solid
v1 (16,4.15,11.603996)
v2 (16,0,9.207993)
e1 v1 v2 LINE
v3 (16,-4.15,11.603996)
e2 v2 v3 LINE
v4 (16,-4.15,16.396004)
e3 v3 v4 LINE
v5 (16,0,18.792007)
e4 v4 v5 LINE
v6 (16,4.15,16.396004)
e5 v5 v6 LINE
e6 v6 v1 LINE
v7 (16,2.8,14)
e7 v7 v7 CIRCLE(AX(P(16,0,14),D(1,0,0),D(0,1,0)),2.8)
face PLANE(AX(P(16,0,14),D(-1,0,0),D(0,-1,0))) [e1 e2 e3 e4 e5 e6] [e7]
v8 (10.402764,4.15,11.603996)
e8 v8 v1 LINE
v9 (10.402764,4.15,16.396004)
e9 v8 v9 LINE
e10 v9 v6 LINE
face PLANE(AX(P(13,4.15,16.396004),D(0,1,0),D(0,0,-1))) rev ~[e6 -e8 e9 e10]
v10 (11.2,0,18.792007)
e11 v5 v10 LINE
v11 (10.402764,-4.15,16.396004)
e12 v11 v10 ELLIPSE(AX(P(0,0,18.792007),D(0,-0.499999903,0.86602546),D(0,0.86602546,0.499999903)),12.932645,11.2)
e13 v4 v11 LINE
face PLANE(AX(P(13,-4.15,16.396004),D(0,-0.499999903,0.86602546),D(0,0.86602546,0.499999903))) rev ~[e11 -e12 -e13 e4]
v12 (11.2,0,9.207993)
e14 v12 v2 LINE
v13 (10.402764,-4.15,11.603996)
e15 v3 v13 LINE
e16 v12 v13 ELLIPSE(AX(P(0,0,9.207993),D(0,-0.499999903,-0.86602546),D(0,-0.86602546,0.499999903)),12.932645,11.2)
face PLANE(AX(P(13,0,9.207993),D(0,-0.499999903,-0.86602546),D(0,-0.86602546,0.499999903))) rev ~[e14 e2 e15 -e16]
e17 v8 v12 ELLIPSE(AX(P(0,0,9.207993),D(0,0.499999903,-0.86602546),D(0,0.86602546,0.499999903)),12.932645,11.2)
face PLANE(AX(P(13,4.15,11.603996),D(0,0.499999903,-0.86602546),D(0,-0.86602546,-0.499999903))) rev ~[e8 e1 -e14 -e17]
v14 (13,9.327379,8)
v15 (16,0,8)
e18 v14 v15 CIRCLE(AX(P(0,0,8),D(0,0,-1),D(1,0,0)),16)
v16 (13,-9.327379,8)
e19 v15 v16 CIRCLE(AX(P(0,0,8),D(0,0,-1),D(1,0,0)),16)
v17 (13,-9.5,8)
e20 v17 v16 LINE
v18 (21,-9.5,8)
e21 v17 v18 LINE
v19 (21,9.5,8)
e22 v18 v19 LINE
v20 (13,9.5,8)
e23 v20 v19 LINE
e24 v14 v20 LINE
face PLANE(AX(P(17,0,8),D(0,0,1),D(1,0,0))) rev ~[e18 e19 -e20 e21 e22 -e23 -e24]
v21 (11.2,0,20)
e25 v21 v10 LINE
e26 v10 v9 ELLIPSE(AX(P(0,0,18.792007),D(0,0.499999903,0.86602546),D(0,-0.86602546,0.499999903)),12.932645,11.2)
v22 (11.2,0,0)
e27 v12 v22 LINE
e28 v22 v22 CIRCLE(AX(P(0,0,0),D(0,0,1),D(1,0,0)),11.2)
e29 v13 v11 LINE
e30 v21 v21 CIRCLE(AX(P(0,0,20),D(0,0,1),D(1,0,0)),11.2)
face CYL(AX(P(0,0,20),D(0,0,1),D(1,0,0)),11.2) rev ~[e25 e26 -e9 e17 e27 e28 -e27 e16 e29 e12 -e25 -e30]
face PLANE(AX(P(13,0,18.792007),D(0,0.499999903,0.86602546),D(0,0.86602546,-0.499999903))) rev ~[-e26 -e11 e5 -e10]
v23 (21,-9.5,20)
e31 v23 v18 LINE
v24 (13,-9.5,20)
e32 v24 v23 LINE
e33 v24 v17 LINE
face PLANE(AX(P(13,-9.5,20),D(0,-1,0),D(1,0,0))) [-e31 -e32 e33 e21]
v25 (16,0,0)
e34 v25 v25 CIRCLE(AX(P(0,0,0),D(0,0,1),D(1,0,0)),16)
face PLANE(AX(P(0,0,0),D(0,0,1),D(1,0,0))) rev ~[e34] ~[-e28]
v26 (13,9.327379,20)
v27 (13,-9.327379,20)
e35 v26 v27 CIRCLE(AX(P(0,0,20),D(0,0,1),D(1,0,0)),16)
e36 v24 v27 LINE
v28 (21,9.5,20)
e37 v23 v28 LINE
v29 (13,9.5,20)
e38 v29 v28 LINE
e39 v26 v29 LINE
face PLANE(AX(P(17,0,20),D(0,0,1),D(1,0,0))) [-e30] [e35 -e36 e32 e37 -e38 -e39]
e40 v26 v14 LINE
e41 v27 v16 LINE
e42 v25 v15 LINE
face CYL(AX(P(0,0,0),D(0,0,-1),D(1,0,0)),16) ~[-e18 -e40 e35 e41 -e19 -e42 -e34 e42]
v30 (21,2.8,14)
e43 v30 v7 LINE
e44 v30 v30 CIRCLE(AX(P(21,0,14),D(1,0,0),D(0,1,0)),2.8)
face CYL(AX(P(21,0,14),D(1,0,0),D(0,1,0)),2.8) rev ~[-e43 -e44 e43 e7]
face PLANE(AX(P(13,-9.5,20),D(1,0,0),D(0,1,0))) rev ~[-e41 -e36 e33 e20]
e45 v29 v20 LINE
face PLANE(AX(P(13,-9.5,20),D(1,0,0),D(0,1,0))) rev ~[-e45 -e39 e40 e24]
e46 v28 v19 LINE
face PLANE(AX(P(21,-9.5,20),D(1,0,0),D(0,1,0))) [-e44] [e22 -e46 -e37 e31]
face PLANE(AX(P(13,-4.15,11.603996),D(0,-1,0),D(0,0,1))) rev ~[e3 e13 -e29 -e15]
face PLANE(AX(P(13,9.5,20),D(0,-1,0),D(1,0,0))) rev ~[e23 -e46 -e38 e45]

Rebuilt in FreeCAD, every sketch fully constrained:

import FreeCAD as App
import Part
import Sketcher

V = App.Vector
Q = App.Units.Quantity

doc = App.newDocument("Part")
body = doc.addObject("PartDesign::Body", "Body")

sketch1 = doc.addObject("Sketcher::SketchObject", "Sketch")
body.addObject(sketch1)
sketch1.AttachmentSupport = (doc.XY_Plane, [""])
sketch1.MapMode = "FlatFace"
sketch1.addGeometry(Part.Circle(V(0, 0, 0), V(0, 0, 1), 16), False)
sketch1.addConstraint([
    Sketcher.Constraint("Coincident", 0, 3, -1, 1),
    Sketcher.Constraint("Diameter", 0, Q("32 mm")),
])
pad1 = doc.addObject("PartDesign::Pad", "Pad")
body.addObject(pad1)
pad1.Profile = sketch1
pad1.Length = 20

sketch2 = doc.addObject("Sketcher::SketchObject", "Sketch001")
body.addObject(sketch2)
sketch2.AttachmentSupport = (doc.XY_Plane, [""])
sketch2.MapMode = "FlatFace"
sketch2.AttachmentOffset = App.Placement(V(0, 0, 20), App.Rotation())
sketch2.addGeometry(Part.Circle(V(0, 0, 0), V(0, 0, 1), 11.2), False)
sketch2.addConstraint([
    Sketcher.Constraint("Coincident", 0, 3, -1, 1),
    Sketcher.Constraint("Diameter", 0, Q("22.4 mm")),
])
pocket1 = doc.addObject("PartDesign::Pocket", "Pocket")
body.addObject(pocket1)
pocket1.Profile = sketch2
pocket1.Type = "ThroughAll"

sketch3 = doc.addObject("Sketcher::SketchObject", "Sketch002")
body.addObject(sketch3)
sketch3.AttachmentSupport = (doc.XY_Plane, [""])
sketch3.MapMode = "FlatFace"
sketch3.AttachmentOffset = App.Placement(V(0, 0, 20), App.Rotation())
sketch3.addGeometry([
    Part.LineSegment(V(13, 9.5, 0), V(13, -9.5, 0)),
    Part.LineSegment(V(13, -9.5, 0), V(21, -9.5, 0)),
    Part.LineSegment(V(21, -9.5, 0), V(21, 9.5, 0)),
    Part.LineSegment(V(21, 9.5, 0), V(13, 9.5, 0)),
], False)
sketch3.addConstraint([
    Sketcher.Constraint("Coincident", 0, 2, 1, 1),
    Sketcher.Constraint("Coincident", 1, 2, 2, 1),
    Sketcher.Constraint("Coincident", 2, 2, 3, 1),
    Sketcher.Constraint("Coincident", 3, 2, 0, 1),
    Sketcher.Constraint("Vertical", 0),
    Sketcher.Constraint("Horizontal", 1),
    Sketcher.Constraint("Vertical", 2),
    Sketcher.Constraint("Horizontal", 3),
    Sketcher.Constraint("DistanceX", 1, 1, 1, 2, Q("8 mm")),
    Sketcher.Constraint("DistanceY", 0, 2, 0, 1, Q("19 mm")),
    Sketcher.Constraint("DistanceX", -1, 1, 0, 2, Q("13 mm")),
    Sketcher.Constraint("DistanceY", 0, 2, -1, 1, Q("9.5 mm")),
])
pad2 = doc.addObject("PartDesign::Pad", "Pad001")
body.addObject(pad2)
pad2.Profile = sketch3
pad2.Length = 12
pad2.Reversed = True

sketch4 = doc.addObject("Sketcher::SketchObject", "Sketch003")
body.addObject(sketch4)
sketch4.AttachmentSupport = (doc.YZ_Plane, [""])
sketch4.MapMode = "FlatFace"
sketch4.AttachmentOffset = App.Placement(V(0, 0, 13), App.Rotation())
sketch4.addGeometry([
    Part.LineSegment(V(0, 9.207993, 0), V(-4.15, 11.603996, 0)),
    Part.LineSegment(V(-4.15, 11.603996, 0), V(-4.15, 16.396004, 0)),
    Part.LineSegment(V(-4.15, 16.396004, 0), V(0, 18.792007, 0)),
    Part.LineSegment(V(0, 18.792007, 0), V(4.15, 16.396004, 0)),
    Part.LineSegment(V(4.15, 16.396004, 0), V(4.15, 11.603996, 0)),
    Part.LineSegment(V(4.15, 11.603996, 0), V(0, 9.207993, 0)),
], False)
sketch4.addConstraint([
    Sketcher.Constraint("Coincident", 0, 2, 1, 1),
    Sketcher.Constraint("Coincident", 1, 2, 2, 1),
    Sketcher.Constraint("Coincident", 2, 2, 3, 1),
    Sketcher.Constraint("Coincident", 3, 2, 4, 1),
    Sketcher.Constraint("Coincident", 4, 2, 5, 1),
    Sketcher.Constraint("Coincident", 5, 2, 0, 1),
    Sketcher.Constraint("Vertical", 1),
    Sketcher.Constraint("Vertical", 4),
    Sketcher.Constraint("Symmetric", 1, 2, 3, 2, -2),
    Sketcher.Constraint("PointOnObject", 2, 2, -2),
    Sketcher.Constraint("PointOnObject", 5, 2, -2),
    Sketcher.Constraint("Parallel", 0, 3),
    Sketcher.Constraint("Parallel", 2, 5),
    Sketcher.Constraint("Angle", 0, Q("150.000006 deg")),
    Sketcher.Constraint("DistanceX", 1, 2, 3, 2, Q("8.3 mm")),
    Sketcher.Constraint("DistanceY", 1, 1, 1, 2, Q("4.792008 mm")),
    Sketcher.Constraint("DistanceY", -1, 1, 0, 2, Q("11.603996 mm")),
])
pocket2 = doc.addObject("PartDesign::Pocket", "Pocket001")
body.addObject(pocket2)
pocket2.Profile = sketch4
pocket2.Length = 6
pocket2.Midplane = True

sketch5 = doc.addObject("Sketcher::SketchObject", "Sketch004")
body.addObject(sketch5)
sketch5.AttachmentSupport = (doc.YZ_Plane, [""])
sketch5.MapMode = "FlatFace"
sketch5.AttachmentOffset = App.Placement(V(0, 0, 21), App.Rotation())
sketch5.addGeometry(Part.Circle(V(0, 14, 0), V(0, 0, 1), 2.8), False)
sketch5.addConstraint([
    Sketcher.Constraint("PointOnObject", 0, 3, -2),
    Sketcher.Constraint("Diameter", 0, Q("5.6 mm")),
    Sketcher.Constraint("DistanceY", -1, 1, 0, 3, Q("14 mm")),
])
pocket3 = doc.addObject("PartDesign::Pocket", "Pocket002")
body.addObject(pocket3)
pocket3.Profile = sketch5
pocket3.Length = 15

doc.recompute()
